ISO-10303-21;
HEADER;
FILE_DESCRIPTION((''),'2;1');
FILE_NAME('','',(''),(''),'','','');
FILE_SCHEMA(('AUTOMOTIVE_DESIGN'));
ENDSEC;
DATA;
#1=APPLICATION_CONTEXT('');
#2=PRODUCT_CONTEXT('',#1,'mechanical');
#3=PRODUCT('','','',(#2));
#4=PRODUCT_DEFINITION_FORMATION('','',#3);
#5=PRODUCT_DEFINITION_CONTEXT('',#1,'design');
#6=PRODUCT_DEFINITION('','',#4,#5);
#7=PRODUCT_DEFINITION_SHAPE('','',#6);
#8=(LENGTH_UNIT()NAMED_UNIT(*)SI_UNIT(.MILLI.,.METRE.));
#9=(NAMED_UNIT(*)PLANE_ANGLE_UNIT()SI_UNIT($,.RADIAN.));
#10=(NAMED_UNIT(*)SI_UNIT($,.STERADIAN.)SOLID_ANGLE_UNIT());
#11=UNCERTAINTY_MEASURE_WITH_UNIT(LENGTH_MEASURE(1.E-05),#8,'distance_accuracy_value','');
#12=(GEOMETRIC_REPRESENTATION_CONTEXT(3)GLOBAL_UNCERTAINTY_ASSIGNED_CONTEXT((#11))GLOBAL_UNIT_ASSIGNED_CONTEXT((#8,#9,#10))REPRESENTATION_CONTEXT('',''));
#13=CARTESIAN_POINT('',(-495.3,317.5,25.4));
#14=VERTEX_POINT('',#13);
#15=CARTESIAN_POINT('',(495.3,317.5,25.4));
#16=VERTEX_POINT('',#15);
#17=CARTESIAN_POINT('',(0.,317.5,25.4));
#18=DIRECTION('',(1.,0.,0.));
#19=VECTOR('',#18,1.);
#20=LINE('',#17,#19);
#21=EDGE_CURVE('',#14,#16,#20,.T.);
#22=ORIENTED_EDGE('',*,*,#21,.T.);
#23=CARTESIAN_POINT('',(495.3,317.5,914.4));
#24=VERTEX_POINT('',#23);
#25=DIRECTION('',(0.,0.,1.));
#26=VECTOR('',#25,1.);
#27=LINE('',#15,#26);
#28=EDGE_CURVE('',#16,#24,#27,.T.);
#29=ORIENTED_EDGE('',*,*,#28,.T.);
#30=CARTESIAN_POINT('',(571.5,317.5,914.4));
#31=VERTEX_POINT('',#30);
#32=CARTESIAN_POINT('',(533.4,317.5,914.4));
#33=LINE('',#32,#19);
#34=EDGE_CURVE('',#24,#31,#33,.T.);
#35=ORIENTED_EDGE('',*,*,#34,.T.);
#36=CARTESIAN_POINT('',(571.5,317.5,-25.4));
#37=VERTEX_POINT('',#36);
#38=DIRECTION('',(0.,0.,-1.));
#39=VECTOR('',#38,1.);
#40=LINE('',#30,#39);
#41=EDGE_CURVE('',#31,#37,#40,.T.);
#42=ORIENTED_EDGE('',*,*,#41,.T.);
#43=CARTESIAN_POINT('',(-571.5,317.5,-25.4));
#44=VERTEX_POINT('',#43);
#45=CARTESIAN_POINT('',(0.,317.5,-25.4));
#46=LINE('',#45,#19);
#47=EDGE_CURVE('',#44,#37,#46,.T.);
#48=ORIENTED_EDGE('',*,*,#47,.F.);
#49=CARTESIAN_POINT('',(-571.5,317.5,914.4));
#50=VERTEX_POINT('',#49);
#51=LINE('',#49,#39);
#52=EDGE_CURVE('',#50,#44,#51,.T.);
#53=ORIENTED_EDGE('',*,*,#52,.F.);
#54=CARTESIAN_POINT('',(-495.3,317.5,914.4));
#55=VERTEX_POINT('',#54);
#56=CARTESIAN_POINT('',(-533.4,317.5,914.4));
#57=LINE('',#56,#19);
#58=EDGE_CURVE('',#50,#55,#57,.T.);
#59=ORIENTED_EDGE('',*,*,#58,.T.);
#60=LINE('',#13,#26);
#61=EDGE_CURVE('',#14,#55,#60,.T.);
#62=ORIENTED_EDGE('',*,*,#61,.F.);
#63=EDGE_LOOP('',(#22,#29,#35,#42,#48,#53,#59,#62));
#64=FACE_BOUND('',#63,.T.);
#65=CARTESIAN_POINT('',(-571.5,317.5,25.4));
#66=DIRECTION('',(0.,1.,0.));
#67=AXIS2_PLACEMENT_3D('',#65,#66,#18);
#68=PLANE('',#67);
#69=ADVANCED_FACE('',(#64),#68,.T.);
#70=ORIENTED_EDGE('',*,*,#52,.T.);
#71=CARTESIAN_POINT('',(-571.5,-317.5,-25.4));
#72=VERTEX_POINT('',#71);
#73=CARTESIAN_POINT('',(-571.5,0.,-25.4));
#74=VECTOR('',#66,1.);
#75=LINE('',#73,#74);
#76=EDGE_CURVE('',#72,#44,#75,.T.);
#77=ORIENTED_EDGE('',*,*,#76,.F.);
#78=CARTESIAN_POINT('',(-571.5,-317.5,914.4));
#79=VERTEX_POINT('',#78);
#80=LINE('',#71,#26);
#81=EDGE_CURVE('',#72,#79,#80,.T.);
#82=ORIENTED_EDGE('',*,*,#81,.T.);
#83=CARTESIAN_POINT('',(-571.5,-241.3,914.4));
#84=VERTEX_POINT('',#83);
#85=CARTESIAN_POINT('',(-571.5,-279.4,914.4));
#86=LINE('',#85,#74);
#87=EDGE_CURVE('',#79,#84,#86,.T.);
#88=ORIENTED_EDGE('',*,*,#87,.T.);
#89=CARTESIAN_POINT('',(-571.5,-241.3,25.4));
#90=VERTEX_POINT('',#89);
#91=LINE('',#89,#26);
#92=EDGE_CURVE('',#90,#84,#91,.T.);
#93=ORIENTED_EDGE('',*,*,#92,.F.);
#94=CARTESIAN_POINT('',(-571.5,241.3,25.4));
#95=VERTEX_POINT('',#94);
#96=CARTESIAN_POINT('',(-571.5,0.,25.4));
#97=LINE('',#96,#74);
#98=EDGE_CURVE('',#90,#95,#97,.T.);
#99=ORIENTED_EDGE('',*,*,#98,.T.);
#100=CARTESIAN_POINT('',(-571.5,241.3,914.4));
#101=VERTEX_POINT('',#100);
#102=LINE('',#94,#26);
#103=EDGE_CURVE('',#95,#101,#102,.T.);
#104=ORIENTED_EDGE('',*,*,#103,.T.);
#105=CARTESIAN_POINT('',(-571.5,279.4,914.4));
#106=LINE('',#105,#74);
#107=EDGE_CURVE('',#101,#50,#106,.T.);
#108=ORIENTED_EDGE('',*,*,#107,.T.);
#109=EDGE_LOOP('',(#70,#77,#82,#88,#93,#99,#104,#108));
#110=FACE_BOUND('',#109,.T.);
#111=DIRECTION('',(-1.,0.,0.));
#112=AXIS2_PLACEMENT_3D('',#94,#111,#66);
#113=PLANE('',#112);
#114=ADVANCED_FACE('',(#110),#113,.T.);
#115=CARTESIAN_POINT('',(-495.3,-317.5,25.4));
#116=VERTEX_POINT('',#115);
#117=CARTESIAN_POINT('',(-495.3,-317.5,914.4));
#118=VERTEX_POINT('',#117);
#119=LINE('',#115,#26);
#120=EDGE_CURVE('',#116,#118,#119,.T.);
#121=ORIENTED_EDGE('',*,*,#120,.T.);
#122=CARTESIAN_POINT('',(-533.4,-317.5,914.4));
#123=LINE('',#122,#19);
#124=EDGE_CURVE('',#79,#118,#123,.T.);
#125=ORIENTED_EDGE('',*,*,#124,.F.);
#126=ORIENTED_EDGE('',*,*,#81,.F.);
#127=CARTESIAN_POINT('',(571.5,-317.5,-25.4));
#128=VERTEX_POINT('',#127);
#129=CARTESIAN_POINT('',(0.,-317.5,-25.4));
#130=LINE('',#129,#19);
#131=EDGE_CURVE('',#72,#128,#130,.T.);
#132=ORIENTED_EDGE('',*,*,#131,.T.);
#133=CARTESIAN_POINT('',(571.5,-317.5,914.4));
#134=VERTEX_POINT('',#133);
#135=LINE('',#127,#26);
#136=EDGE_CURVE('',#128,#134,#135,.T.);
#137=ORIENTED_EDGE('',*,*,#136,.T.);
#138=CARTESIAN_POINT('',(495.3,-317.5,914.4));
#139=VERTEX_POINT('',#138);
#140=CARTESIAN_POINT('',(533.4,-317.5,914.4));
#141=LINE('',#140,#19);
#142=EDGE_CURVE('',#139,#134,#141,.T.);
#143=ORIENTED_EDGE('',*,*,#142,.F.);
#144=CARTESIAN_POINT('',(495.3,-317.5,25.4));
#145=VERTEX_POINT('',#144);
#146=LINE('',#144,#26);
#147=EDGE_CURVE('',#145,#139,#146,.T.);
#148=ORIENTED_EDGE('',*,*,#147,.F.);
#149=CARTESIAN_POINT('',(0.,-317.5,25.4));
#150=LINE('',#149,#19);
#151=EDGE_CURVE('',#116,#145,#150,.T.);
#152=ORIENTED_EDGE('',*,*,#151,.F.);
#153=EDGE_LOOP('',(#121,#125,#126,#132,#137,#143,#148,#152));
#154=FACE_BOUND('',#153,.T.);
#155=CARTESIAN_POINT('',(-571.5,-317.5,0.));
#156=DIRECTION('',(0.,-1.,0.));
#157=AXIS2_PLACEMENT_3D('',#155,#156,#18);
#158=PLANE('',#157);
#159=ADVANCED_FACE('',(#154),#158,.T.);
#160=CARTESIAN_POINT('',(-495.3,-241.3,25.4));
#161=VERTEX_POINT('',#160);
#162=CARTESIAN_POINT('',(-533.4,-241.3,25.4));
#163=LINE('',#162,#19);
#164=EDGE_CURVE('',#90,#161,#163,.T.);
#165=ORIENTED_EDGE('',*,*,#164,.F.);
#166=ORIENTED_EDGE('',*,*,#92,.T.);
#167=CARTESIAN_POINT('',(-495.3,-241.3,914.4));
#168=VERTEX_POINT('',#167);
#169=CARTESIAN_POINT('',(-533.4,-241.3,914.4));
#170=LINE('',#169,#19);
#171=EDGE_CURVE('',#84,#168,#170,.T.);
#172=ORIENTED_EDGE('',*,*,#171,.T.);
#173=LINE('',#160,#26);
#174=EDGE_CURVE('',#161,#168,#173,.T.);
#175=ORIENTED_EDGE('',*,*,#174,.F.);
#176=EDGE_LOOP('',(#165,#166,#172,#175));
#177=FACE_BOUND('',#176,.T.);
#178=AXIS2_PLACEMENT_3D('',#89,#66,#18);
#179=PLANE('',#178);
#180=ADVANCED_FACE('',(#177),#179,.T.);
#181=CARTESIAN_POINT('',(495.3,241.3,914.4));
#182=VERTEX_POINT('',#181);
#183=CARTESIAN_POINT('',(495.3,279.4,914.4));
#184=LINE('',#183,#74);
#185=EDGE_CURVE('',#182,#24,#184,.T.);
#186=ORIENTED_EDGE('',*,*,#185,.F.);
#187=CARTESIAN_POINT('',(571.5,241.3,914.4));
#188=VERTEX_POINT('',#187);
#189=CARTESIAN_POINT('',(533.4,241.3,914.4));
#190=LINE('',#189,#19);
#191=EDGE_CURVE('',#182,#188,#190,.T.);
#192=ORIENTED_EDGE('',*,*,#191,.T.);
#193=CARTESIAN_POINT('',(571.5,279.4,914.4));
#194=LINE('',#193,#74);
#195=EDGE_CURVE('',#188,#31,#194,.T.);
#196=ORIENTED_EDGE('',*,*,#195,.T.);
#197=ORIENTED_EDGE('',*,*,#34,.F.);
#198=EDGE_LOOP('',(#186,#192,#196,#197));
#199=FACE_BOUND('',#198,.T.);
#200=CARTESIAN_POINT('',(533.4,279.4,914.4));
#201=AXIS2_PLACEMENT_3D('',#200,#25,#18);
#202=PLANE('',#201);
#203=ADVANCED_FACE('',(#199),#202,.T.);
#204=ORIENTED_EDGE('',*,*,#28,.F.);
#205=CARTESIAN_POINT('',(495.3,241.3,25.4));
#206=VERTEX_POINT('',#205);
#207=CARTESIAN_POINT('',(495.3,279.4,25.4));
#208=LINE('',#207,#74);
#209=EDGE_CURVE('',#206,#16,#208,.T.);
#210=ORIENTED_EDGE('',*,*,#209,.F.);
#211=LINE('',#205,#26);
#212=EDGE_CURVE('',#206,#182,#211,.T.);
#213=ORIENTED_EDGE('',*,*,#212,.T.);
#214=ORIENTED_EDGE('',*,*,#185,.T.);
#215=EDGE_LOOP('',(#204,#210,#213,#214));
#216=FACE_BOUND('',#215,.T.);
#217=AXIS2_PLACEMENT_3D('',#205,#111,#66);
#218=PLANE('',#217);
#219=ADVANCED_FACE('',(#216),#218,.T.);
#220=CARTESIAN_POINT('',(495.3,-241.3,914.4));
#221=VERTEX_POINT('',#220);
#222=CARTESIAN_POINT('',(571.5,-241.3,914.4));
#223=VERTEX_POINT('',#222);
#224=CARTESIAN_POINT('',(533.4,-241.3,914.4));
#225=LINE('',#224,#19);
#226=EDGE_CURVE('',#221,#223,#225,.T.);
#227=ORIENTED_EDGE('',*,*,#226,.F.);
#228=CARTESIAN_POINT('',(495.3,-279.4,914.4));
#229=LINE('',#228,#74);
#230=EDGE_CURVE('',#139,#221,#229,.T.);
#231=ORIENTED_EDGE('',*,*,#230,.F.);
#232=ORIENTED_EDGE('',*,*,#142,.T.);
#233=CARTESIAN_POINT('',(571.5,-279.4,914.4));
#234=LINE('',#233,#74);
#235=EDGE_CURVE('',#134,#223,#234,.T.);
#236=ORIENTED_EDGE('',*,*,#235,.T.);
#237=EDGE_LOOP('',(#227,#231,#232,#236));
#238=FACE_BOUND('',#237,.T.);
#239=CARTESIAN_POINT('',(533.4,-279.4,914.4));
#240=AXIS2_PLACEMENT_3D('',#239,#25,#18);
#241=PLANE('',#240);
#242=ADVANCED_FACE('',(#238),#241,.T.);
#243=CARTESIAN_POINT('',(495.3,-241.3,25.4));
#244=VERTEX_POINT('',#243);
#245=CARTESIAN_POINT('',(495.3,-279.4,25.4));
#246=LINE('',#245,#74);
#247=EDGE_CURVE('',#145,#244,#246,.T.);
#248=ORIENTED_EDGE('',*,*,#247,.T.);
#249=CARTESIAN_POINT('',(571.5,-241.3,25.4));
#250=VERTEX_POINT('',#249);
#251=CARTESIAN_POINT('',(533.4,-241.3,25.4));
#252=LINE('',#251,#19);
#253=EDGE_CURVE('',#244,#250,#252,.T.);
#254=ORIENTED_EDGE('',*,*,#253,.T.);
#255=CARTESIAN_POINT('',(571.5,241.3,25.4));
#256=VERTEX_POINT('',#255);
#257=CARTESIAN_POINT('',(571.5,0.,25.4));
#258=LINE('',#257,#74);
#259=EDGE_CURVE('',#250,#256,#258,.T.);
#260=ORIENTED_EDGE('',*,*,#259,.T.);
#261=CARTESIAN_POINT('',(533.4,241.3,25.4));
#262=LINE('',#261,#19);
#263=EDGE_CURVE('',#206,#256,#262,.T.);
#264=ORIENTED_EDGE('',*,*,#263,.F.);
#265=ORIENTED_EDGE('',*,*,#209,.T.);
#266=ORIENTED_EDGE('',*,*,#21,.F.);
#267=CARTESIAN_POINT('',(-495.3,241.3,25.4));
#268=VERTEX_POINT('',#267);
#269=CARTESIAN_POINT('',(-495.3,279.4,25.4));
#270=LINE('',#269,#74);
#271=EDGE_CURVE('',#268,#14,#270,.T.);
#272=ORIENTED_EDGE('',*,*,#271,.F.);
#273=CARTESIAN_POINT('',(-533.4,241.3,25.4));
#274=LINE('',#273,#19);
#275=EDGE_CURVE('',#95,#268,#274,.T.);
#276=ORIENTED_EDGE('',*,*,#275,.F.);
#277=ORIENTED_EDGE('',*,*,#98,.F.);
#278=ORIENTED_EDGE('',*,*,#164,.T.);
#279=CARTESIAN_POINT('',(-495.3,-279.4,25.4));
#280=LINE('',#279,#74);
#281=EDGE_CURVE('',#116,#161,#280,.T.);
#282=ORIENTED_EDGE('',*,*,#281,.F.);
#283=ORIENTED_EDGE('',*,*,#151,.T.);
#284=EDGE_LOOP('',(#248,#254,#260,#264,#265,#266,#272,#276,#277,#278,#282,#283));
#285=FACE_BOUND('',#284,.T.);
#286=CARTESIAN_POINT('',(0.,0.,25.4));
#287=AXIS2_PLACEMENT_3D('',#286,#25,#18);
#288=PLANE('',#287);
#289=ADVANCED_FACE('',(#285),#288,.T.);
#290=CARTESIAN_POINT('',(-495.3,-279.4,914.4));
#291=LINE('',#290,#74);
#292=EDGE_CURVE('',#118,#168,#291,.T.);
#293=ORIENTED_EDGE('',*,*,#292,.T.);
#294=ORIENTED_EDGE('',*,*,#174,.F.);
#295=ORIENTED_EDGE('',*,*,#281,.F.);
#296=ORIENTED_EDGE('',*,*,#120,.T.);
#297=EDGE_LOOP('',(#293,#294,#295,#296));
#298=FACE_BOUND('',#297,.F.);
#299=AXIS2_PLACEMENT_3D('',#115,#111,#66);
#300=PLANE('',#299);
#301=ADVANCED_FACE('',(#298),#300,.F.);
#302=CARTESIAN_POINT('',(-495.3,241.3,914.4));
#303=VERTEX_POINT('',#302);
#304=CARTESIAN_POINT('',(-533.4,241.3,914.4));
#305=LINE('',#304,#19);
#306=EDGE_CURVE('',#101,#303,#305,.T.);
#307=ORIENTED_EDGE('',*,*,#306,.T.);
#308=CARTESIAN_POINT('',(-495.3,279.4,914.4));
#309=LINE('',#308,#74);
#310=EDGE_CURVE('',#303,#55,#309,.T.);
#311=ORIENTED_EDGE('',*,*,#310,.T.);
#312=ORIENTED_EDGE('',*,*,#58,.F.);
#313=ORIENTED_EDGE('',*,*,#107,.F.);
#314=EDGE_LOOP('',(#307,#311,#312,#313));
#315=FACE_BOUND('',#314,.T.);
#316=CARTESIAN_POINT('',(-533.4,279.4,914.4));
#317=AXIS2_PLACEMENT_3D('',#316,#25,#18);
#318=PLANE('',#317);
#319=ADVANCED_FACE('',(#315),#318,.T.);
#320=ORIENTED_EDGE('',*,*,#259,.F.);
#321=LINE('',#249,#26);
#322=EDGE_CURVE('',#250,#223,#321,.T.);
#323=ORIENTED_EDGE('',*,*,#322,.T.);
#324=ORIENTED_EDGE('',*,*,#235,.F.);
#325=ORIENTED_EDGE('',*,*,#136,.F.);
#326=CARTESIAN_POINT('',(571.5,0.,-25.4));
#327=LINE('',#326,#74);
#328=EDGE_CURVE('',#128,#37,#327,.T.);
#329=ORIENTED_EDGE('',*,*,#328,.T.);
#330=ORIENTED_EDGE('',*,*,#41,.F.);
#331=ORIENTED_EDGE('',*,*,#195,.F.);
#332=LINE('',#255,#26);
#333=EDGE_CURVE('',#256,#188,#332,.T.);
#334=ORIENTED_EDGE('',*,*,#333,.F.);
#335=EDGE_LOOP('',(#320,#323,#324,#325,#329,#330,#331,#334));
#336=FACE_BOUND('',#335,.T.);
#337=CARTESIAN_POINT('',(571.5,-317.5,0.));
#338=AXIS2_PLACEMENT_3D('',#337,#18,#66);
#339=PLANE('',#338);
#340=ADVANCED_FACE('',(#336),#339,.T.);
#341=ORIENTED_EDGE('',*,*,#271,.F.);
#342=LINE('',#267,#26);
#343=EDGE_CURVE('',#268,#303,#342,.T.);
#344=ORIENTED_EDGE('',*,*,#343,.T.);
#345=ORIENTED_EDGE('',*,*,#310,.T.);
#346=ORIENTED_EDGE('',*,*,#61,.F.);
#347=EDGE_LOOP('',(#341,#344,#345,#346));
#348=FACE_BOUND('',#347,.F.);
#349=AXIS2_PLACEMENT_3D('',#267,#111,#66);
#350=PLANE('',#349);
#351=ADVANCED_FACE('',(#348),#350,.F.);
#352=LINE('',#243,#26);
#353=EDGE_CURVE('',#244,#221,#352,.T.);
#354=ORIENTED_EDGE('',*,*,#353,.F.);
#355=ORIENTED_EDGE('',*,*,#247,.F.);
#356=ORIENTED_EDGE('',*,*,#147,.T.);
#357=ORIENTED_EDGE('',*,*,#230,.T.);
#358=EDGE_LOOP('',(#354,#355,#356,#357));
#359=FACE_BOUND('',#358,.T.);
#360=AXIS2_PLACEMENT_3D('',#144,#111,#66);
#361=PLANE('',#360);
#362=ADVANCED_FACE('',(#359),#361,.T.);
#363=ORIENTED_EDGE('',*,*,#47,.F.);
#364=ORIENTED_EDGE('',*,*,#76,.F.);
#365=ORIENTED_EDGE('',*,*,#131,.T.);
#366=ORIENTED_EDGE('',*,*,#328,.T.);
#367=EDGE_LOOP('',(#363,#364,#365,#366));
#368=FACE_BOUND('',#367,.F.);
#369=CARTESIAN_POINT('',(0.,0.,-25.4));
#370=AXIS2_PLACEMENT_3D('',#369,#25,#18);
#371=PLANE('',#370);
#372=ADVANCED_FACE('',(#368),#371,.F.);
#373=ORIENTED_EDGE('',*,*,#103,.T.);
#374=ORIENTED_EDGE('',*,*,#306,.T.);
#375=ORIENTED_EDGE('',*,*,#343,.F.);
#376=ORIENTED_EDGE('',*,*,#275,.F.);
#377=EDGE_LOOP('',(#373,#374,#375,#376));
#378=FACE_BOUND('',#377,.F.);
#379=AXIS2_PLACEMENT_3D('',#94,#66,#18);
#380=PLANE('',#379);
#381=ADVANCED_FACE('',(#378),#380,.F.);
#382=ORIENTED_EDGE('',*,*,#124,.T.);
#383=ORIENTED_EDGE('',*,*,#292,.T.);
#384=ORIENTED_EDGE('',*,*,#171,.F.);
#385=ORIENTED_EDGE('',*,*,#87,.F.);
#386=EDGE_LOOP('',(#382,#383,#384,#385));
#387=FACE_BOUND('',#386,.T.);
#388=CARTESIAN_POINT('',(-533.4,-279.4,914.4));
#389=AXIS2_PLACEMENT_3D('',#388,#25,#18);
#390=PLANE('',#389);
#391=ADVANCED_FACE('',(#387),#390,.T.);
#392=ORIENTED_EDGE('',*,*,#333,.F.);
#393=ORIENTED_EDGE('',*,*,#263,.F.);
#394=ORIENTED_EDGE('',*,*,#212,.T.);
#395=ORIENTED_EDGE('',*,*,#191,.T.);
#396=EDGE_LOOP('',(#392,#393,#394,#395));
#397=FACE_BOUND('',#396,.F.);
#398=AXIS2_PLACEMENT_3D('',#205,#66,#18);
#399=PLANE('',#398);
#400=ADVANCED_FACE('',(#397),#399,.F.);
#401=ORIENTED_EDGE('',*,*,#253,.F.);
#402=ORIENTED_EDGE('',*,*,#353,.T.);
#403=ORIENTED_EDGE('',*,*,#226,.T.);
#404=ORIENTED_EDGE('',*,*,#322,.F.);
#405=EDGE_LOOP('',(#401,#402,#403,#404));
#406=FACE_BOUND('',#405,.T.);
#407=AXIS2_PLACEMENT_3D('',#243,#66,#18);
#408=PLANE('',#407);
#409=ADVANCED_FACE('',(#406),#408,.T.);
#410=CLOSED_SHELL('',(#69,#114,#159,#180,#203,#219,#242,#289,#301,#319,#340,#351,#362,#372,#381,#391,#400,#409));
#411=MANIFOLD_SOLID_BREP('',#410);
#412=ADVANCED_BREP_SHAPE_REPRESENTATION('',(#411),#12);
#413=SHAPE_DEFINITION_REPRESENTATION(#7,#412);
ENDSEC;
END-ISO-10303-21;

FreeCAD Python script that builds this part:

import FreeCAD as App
import Part
import Sketcher

V = App.Vector
Q = App.Units.Quantity

doc = App.newDocument("Part")
body = doc.addObject("PartDesign::Body", "Body")

sketch1 = body.newObject("Sketcher::SketchObject", "Sketch")
sketch1.AttachmentSupport = (doc.getObject("XY_Plane"), [""])
sketch1.MapMode = "FlatFace"
sketch1.addGeometry([
    Part.LineSegment(V(-572, 318, 0), V(-572, -318, 0)),
    Part.LineSegment(V(-572, -318, 0), V(572, -318, 0)),
    Part.LineSegment(V(572, -318, 0), V(572, 318, 0)),
    Part.LineSegment(V(572, 318, 0), V(-572, 318, 0)),
], False)
sketch1.addConstraint([
    Sketcher.Constraint("Coincident", 0, 2, 1, 1),
    Sketcher.Constraint("Coincident", 1, 2, 2, 1),
    Sketcher.Constraint("Coincident", 2, 2, 3, 1),
    Sketcher.Constraint("Coincident", 3, 2, 0, 1),
    Sketcher.Constraint("Vertical", 0),
    Sketcher.Constraint("Horizontal", 1),
    Sketcher.Constraint("Vertical", 2),
    Sketcher.Constraint("Horizontal", 3),
    Sketcher.Constraint("Symmetric", 0, 2, 2, 2, -1, 1),
    Sketcher.Constraint("DistanceX", 1, 1, 1, 2, Q("45 in")),
    Sketcher.Constraint("DistanceY", 0, 2, 0, 1, Q("25 in")),
])
pad1 = body.newObject("PartDesign::Pad", "Pad")
pad1.Profile = sketch1
pad1.Length = Q("2 in")
pad1.Midplane = True

sketch2 = body.newObject("Sketcher::SketchObject", "Sketch001")
sketch2.AttachmentSupport = (doc.getObject("XY_Plane"), [""])
sketch2.MapMode = "FlatFace"
sketch2.AttachmentOffset = App.Placement(V(0, 0, 1 * 25.4), App.Rotation())
sketch2.addGeometry([
    Part.LineSegment(V(-572, 318, 0), V(-572, 241, 0)),
    Part.LineSegment(V(-572, 241, 0), V(-495, 241, 0)),
    Part.LineSegment(V(-495, 241, 0), V(-495, 318, 0)),
    Part.LineSegment(V(-495, 318, 0), V(-572, 318, 0)),
    Part.LineSegment(V(-572, -241, 0), V(-572, -318, 0)),
    Part.LineSegment(V(-572, -318, 0), V(-495, -318, 0)),
    Part.LineSegment(V(-495, -318, 0), V(-495, -241, 0)),
    Part.LineSegment(V(-495, -241, 0), V(-572, -241, 0)),
    Part.LineSegment(V(495, 318, 0), V(495, 241, 0)),
    Part.LineSegment(V(495, 241, 0), V(572, 241, 0)),
    Part.LineSegment(V(572, 241, 0), V(572, 318, 0)),
    Part.LineSegment(V(572, 318, 0), V(495, 318, 0)),
    Part.LineSegment(V(495, -241, 0), V(495, -318, 0)),
    Part.LineSegment(V(495, -318, 0), V(572, -318, 0)),
    Part.LineSegment(V(572, -318, 0), V(572, -241, 0)),
    Part.LineSegment(V(572, -241, 0), V(495, -241, 0)),
], False)
sketch2.addConstraint([
    Sketcher.Constraint("Coincident", 0, 2, 1, 1),
    Sketcher.Constraint("Coincident", 1, 2, 2, 1),
    Sketcher.Constraint("Coincident", 2, 2, 3, 1),
    Sketcher.Constraint("Coincident", 3, 2, 0, 1),
    Sketcher.Constraint("Coincident", 4, 2, 5, 1),
    Sketcher.Constraint("Coincident", 5, 2, 6, 1),
    Sketcher.Constraint("Coincident", 6, 2, 7, 1),
    Sketcher.Constraint("Coincident", 7, 2, 4, 1),
    Sketcher.Constraint("Coincident", 8, 2, 9, 1),
    Sketcher.Constraint("Coincident", 9, 2, 10, 1),
    Sketcher.Constraint("Coincident", 10, 2, 11, 1),
    Sketcher.Constraint("Coincident", 11, 2, 8, 1),
    Sketcher.Constraint("Coincident", 12, 2, 13, 1),
    Sketcher.Constraint("Coincident", 13, 2, 14, 1),
    Sketcher.Constraint("Coincident", 14, 2, 15, 1),
    Sketcher.Constraint("Coincident", 15, 2, 12, 1),
    Sketcher.Constraint("Vertical", 0),
    Sketcher.Constraint("Horizontal", 1),
    Sketcher.Constraint("Vertical", 2),
    Sketcher.Constraint("Horizontal", 3),
    Sketcher.Constraint("Vertical", 4),
    Sketcher.Constraint("Horizontal", 5),
    Sketcher.Constraint("Vertical", 6),
    Sketcher.Constraint("Horizontal", 7),
    Sketcher.Constraint("Vertical", 8),
    Sketcher.Constraint("Horizontal", 9),
    Sketcher.Constraint("Vertical", 10),
    Sketcher.Constraint("Horizontal", 11),
    Sketcher.Constraint("Vertical", 12),
    Sketcher.Constraint("Horizontal", 13),
    Sketcher.Constraint("Vertical", 14),
    Sketcher.Constraint("Horizontal", 15),
    Sketcher.Constraint("Symmetric", 6, 2, 8, 2, -1, 1),
    Sketcher.Constraint("Symmetric", 4, 2, 10, 2, -1, 1),
    Sketcher.Constraint("Symmetric", 2, 2, 12, 2, -1, 1),
    Sketcher.Constraint("Symmetric", 0, 2, 14, 2, -1, 1),
    Sketcher.Constraint("Symmetric", 1, 2, 8, 2, -2),
    Sketcher.Constraint("Symmetric", 3, 2, 10, 2, -2),
    Sketcher.Constraint("Equal", 15, 0),
    Sketcher.Constraint("DistanceX", 1, 1, 1, 2, Q("3 in")),
    Sketcher.Constraint("DistanceY", 4, 2, 0, 2, Q("22 in")),
    Sketcher.Constraint("DistanceX", 1, 2, 8, 2, Q("39 in")),
])
pad2 = body.newObject("PartDesign::Pad", "Pad001")
pad2.Profile = sketch2
pad2.Length = Q("35 in")

doc.recompute()
